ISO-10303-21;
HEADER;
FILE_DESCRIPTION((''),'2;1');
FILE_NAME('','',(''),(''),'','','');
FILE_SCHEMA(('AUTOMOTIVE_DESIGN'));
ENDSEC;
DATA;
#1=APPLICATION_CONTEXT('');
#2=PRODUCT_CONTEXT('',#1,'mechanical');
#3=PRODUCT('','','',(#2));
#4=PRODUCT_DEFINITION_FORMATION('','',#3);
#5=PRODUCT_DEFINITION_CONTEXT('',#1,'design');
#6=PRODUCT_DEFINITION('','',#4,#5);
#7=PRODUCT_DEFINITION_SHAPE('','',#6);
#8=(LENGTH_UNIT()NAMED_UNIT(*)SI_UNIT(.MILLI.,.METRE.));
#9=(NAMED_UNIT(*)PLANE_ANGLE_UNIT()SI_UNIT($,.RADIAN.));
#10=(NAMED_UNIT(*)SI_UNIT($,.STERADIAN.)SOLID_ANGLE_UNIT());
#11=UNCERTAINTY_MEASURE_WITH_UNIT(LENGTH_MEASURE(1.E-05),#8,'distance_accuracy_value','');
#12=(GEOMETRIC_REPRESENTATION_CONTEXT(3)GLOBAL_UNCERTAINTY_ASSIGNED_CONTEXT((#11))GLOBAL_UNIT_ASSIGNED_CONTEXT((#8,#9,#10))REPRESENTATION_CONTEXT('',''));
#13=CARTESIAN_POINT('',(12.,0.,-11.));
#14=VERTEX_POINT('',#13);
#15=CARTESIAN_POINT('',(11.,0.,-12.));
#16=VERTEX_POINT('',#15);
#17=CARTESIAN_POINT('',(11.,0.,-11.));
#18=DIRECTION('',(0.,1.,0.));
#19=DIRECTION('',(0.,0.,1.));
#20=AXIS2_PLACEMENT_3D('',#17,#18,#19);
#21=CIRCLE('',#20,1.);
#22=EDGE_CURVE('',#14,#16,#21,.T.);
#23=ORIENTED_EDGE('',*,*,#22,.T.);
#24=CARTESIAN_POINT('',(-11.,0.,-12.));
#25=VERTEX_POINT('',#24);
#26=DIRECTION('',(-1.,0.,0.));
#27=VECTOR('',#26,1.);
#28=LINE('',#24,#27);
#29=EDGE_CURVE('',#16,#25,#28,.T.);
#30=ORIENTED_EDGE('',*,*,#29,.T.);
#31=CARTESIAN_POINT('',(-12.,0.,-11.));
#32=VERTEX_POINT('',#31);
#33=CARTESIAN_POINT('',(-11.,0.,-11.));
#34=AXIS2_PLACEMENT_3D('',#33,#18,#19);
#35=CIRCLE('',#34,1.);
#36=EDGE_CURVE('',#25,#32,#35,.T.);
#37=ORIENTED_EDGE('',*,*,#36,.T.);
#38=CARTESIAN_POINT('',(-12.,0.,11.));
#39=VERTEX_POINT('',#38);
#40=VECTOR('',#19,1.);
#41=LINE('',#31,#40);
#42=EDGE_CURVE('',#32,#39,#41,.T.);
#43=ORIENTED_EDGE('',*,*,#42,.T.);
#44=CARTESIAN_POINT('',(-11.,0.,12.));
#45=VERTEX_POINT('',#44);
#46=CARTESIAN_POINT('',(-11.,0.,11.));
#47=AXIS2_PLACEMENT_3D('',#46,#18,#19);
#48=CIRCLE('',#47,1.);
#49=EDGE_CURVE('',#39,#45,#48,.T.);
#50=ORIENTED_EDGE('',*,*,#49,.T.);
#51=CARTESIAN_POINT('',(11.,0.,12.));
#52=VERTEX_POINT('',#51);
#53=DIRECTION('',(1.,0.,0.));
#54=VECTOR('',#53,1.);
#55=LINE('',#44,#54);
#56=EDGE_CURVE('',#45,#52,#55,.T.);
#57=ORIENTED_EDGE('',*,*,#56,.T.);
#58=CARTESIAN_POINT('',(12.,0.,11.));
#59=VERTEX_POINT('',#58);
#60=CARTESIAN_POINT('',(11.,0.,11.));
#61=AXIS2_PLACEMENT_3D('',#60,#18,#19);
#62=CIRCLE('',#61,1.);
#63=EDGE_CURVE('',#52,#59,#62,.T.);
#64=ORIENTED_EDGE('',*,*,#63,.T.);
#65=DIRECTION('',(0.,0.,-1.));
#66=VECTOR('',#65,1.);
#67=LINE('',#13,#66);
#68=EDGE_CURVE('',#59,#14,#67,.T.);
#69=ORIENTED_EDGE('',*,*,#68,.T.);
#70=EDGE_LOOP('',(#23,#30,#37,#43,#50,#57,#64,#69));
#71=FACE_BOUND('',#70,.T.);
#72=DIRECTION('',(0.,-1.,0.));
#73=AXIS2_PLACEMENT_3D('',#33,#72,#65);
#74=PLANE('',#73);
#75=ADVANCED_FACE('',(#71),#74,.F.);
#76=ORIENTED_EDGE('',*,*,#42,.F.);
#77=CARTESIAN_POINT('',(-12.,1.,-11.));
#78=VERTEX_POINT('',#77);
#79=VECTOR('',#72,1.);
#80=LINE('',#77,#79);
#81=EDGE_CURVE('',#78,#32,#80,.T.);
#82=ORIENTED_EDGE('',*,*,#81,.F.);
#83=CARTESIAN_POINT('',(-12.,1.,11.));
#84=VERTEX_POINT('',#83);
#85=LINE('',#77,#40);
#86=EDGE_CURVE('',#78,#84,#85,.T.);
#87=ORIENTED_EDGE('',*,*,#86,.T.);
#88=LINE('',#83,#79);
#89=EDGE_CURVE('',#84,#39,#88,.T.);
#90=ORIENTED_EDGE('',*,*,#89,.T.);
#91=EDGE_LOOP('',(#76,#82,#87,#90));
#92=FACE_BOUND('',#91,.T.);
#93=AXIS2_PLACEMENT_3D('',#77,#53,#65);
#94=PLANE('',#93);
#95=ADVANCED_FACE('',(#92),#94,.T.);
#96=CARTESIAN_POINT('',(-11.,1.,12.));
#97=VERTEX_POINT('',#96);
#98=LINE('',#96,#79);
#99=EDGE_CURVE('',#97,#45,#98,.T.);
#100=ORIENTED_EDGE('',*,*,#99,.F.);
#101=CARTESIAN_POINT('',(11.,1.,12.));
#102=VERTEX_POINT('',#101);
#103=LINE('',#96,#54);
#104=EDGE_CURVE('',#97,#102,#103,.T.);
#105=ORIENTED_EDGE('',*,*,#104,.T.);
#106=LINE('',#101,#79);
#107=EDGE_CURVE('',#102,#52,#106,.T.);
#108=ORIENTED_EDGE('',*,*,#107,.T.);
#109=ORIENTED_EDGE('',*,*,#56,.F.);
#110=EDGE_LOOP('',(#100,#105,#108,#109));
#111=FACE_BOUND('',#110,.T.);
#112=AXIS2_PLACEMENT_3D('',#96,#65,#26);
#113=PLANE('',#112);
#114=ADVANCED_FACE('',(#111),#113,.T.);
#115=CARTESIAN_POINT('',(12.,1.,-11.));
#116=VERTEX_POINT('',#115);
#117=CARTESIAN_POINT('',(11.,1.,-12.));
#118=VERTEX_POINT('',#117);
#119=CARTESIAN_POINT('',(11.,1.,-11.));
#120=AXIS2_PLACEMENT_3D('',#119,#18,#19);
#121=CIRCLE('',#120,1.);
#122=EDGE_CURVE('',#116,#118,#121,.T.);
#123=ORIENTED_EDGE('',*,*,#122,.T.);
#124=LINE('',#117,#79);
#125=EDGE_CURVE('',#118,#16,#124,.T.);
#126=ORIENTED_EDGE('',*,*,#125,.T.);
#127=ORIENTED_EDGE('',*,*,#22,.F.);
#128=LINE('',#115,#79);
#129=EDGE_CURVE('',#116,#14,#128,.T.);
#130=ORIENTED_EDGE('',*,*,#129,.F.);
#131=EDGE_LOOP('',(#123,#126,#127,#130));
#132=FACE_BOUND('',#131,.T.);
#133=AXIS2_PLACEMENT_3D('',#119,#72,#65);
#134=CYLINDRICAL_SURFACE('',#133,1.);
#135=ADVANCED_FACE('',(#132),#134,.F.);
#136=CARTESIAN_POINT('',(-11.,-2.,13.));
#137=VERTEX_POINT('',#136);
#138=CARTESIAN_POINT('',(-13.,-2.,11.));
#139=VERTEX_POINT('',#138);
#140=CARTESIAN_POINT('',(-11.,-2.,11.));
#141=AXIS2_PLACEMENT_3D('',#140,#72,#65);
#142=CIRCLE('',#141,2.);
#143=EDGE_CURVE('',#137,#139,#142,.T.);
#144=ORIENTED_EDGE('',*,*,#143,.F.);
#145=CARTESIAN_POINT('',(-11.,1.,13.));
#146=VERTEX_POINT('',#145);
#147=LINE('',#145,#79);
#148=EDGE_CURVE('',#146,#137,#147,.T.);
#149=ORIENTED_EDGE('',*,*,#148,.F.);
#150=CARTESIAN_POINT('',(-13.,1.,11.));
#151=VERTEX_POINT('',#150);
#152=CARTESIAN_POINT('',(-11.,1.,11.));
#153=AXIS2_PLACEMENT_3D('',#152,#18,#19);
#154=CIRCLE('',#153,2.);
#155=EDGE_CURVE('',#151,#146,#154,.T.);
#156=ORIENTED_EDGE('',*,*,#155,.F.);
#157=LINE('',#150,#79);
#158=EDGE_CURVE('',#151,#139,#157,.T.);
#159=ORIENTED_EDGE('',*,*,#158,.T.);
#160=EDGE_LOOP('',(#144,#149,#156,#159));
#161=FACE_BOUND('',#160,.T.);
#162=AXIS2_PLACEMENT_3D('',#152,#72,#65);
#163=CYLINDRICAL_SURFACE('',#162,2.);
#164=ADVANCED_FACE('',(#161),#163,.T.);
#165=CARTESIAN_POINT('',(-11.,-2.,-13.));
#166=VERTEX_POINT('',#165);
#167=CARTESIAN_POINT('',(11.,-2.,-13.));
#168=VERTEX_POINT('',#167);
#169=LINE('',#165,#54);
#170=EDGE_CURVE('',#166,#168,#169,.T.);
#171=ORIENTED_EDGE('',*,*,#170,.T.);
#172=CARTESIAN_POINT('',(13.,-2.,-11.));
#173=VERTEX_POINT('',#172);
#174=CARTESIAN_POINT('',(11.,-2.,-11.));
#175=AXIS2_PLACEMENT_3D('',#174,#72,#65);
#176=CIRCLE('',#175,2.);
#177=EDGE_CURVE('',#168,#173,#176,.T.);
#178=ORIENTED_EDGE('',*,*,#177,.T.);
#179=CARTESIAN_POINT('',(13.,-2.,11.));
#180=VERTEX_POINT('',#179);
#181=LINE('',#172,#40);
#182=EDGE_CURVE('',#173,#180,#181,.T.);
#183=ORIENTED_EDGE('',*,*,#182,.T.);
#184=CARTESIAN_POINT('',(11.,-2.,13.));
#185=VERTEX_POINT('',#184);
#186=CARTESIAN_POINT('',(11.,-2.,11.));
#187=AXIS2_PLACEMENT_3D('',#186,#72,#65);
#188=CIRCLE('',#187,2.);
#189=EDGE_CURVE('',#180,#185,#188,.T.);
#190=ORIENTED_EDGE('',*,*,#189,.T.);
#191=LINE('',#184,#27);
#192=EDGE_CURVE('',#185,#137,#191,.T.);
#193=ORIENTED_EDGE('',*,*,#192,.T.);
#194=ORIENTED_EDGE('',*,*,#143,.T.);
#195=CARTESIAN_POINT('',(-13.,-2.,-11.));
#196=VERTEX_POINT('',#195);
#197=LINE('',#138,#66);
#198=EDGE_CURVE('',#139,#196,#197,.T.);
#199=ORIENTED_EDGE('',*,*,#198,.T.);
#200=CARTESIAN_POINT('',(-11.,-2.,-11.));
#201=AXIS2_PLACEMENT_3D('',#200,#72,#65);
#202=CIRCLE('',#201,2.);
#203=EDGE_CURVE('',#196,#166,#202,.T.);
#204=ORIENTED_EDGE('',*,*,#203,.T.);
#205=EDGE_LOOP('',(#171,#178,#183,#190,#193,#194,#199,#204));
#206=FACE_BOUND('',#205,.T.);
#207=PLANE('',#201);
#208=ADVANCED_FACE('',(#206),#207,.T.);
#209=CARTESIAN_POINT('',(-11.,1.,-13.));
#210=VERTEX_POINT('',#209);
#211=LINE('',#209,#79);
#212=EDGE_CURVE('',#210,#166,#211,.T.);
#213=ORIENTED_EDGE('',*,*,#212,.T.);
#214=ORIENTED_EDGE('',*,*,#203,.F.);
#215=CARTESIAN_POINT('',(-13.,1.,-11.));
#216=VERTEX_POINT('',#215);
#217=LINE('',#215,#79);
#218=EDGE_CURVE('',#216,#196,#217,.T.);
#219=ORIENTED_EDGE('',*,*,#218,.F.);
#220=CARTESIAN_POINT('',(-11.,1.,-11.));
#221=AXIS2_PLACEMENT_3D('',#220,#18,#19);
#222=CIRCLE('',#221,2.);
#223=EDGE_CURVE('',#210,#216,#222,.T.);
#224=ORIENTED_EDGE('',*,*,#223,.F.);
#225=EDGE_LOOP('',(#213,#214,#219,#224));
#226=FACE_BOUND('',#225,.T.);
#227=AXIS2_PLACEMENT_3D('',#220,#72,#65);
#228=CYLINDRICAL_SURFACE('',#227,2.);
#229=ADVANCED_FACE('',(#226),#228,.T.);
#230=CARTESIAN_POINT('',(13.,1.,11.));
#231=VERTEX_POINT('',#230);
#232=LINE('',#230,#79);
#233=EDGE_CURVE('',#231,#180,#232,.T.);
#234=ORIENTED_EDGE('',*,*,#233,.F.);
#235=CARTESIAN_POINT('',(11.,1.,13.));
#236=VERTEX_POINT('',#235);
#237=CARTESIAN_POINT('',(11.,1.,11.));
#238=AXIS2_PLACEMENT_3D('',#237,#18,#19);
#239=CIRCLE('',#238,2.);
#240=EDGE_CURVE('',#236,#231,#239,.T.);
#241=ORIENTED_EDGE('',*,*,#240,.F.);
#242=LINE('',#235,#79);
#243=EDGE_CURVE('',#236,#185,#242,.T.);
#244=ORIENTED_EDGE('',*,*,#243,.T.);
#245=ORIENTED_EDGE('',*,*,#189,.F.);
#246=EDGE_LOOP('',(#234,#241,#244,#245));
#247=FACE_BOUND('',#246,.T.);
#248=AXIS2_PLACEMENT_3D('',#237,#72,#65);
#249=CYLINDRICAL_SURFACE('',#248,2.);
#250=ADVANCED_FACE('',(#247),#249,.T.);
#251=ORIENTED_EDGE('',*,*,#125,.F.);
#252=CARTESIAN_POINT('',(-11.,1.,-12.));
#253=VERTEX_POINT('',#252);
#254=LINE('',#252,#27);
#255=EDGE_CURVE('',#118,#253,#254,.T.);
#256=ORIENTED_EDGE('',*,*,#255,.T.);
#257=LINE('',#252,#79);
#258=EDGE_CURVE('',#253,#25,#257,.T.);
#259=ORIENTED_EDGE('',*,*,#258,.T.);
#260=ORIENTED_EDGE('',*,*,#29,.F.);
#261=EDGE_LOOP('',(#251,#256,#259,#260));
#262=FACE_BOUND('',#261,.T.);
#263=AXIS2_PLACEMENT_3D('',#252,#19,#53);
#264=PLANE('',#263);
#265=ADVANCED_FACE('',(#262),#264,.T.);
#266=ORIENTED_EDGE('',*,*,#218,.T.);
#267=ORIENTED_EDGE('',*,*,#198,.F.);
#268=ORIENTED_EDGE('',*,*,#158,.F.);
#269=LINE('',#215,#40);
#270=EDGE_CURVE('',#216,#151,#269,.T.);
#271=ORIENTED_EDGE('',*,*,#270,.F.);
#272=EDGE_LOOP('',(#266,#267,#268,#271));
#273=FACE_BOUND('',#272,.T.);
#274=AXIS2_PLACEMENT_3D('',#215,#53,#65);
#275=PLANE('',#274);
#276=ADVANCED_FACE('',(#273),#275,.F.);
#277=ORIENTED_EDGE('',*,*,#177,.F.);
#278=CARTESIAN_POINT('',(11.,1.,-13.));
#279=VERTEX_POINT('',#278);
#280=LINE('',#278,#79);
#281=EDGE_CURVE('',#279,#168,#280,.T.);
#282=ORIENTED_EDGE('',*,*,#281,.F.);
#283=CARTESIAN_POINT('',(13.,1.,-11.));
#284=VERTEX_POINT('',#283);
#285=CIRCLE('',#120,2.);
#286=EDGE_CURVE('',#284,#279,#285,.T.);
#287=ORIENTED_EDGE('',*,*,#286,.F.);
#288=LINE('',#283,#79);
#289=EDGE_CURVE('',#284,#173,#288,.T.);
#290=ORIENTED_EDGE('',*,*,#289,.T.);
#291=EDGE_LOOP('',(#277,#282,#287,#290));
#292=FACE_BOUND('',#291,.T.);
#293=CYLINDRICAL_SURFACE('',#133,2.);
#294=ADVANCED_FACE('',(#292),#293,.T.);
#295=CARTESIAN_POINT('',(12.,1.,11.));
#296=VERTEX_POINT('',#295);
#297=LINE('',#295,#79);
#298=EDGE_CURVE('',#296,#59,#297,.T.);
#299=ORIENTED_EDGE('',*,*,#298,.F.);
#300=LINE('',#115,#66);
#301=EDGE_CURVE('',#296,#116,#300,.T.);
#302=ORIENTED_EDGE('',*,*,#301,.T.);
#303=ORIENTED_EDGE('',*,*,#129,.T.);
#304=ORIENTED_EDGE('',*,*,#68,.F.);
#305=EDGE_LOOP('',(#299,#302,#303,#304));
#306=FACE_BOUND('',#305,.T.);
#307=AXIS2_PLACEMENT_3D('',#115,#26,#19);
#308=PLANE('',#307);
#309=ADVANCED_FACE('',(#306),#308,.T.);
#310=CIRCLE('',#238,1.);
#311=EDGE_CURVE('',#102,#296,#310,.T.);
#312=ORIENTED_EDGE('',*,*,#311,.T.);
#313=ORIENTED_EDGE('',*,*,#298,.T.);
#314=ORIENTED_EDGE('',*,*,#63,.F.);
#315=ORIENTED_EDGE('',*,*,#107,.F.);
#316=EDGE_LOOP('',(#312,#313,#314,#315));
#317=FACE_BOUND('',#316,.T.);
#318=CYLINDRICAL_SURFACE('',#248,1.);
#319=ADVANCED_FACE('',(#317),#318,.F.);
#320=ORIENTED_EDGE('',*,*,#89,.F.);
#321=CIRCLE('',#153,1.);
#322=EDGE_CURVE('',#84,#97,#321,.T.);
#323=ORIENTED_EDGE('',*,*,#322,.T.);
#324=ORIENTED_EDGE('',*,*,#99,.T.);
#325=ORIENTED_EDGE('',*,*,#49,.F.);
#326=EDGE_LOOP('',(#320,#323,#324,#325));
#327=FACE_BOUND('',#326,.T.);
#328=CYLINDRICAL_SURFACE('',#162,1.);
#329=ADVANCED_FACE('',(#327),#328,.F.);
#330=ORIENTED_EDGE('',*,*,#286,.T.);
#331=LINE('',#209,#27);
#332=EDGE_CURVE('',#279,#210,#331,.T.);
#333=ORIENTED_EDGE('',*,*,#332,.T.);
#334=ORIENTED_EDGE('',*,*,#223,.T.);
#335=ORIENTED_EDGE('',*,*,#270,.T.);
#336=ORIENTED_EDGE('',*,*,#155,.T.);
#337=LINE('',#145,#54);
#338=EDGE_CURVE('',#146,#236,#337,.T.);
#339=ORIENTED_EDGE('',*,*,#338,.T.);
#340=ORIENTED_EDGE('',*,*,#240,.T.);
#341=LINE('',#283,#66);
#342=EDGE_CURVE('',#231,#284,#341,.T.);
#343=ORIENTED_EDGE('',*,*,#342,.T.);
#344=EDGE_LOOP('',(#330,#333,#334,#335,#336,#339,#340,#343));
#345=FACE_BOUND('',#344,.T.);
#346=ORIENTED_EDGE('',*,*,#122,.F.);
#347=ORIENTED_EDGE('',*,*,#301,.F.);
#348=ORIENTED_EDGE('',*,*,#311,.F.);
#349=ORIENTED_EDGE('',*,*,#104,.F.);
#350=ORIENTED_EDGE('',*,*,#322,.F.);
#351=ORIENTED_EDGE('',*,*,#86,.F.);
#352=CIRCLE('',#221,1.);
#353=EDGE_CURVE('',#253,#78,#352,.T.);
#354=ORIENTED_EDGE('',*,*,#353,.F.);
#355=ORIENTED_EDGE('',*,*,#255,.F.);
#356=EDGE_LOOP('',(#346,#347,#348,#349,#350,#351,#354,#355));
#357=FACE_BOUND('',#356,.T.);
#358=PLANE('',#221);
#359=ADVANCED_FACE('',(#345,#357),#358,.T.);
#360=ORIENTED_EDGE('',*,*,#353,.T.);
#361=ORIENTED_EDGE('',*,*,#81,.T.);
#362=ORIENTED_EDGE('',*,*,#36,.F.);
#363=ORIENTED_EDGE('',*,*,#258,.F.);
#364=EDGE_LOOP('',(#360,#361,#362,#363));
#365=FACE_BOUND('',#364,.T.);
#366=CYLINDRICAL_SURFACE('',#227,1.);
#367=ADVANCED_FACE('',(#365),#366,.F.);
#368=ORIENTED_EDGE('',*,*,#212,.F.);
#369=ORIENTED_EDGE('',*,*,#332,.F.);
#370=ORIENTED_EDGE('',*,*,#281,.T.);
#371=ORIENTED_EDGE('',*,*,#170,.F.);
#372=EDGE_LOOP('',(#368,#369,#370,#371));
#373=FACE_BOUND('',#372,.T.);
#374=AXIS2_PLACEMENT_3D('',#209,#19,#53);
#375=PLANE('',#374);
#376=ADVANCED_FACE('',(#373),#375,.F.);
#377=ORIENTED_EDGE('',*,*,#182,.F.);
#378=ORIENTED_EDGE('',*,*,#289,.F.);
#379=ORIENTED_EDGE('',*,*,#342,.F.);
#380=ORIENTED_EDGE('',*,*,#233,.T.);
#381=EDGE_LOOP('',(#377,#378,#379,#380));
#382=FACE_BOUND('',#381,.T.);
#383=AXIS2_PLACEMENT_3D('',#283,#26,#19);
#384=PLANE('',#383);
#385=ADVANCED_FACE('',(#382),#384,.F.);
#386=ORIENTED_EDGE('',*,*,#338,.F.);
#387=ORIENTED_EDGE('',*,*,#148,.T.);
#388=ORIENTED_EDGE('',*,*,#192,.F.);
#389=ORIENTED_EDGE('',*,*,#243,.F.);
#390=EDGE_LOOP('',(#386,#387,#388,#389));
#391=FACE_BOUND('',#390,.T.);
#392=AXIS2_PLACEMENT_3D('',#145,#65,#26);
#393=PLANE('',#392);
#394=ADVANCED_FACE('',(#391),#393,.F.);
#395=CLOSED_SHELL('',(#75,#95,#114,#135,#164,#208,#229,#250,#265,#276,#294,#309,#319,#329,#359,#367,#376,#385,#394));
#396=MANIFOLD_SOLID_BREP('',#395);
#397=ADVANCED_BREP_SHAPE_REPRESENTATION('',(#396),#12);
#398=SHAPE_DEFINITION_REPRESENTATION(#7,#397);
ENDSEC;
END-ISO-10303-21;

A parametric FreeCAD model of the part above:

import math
import FreeCAD as App
import Part
import Sketcher
from FreeCAD import Vector

doc = App.newDocument("Part")
body = doc.addObject("PartDesign::Body", "Body")

# Sketch on XZ plane
sketch1 = body.newObject("Sketcher::SketchObject", "Sketch")
sketch1.AttachmentSupport = (doc.getObject("XZ_Plane"), [""])
sketch1.MapMode = "FlatFace"
sketch1.addGeometry(Part.LineSegment(Vector(-13, -11, 0), Vector(-13, 11, 0)), False)
sketch1.addGeometry(Part.ArcOfCircle(Part.Circle(Vector(-11, 11, 0), Vector(0, 0, 1), 2), math.radians(90), math.radians(180)), False)
sketch1.addGeometry(Part.LineSegment(Vector(-11, 13, 0), Vector(11, 13, 0)), False)
sketch1.addGeometry(Part.ArcOfCircle(Part.Circle(Vector(11, 11, 0), Vector(0, 0, 1), 2), math.radians(0), math.radians(90)), False)
sketch1.addGeometry(Part.LineSegment(Vector(13, 11, 0), Vector(13, -11, 0)), False)
sketch1.addGeometry(Part.ArcOfCircle(Part.Circle(Vector(11, -11, 0), Vector(0, 0, 1), 2), math.radians(-90), math.radians(0)), False)
sketch1.addGeometry(Part.LineSegment(Vector(11, -13, 0), Vector(-11, -13, 0)), False)
sketch1.addGeometry(Part.ArcOfCircle(Part.Circle(Vector(-11, -11, 0), Vector(0, 0, 1), 2), math.radians(-180), math.radians(-90)), False)
sketch1.addGeometry(Part.ArcOfCircle(Part.Circle(Vector(-11, -11, 0), Vector(0, 0, 1), 1), math.radians(-180), math.radians(-90)), False)
sketch1.addGeometry(Part.LineSegment(Vector(-11, -12, 0), Vector(11, -12, 0)), False)
sketch1.addGeometry(Part.ArcOfCircle(Part.Circle(Vector(11, -11, 0), Vector(0, 0, 1), 1), math.radians(-90), math.radians(0)), False)
sketch1.addGeometry(Part.LineSegment(Vector(12, -11, 0), Vector(12, 11, 0)), False)
sketch1.addGeometry(Part.ArcOfCircle(Part.Circle(Vector(11, 11, 0), Vector(0, 0, 1), 1), math.radians(0), math.radians(90)), False)
sketch1.addGeometry(Part.LineSegment(Vector(11, 12, 0), Vector(-11, 12, 0)), False)
sketch1.addGeometry(Part.ArcOfCircle(Part.Circle(Vector(-11, 11, 0), Vector(0, 0, 1), 1), math.radians(90), math.radians(180)), False)
sketch1.addGeometry(Part.LineSegment(Vector(-12, 11, 0), Vector(-12, -11, 0)), False)
sketch1.addConstraint(Sketcher.Constraint("Tangent", 0, 2, 1, 2))
sketch1.addConstraint(Sketcher.Constraint("Tangent", 1, 1, 2, 1))
sketch1.addConstraint(Sketcher.Constraint("Tangent", 2, 2, 3, 2))
sketch1.addConstraint(Sketcher.Constraint("Tangent", 3, 1, 4, 1))
sketch1.addConstraint(Sketcher.Constraint("Tangent", 4, 2, 5, 2))
sketch1.addConstraint(Sketcher.Constraint("Tangent", 5, 1, 6, 1))
sketch1.addConstraint(Sketcher.Constraint("Tangent", 6, 2, 7, 2))
sketch1.addConstraint(Sketcher.Constraint("Tangent", 7, 1, 0, 1))
sketch1.addConstraint(Sketcher.Constraint("Tangent", 8, 2, 9, 1))
sketch1.addConstraint(Sketcher.Constraint("Tangent", 9, 2, 10, 1))
sketch1.addConstraint(Sketcher.Constraint("Tangent", 10, 2, 11, 1))
sketch1.addConstraint(Sketcher.Constraint("Tangent", 11, 2, 12, 1))
sketch1.addConstraint(Sketcher.Constraint("Tangent", 12, 2, 13, 1))
sketch1.addConstraint(Sketcher.Constraint("Tangent", 13, 2, 14, 1))
sketch1.addConstraint(Sketcher.Constraint("Tangent", 14, 2, 15, 1))
sketch1.addConstraint(Sketcher.Constraint("Tangent", 15, 2, 8, 1))
sketch1.addConstraint(Sketcher.Constraint("Vertical", 0))
sketch1.addConstraint(Sketcher.Constraint("Horizontal", 2))
sketch1.addConstraint(Sketcher.Constraint("Vertical", 4))
sketch1.addConstraint(Sketcher.Constraint("Horizontal", 6))
sketch1.addConstraint(Sketcher.Constraint("Horizontal", 9))
sketch1.addConstraint(Sketcher.Constraint("Vertical", 11))
sketch1.addConstraint(Sketcher.Constraint("Horizontal", 13))
sketch1.addConstraint(Sketcher.Constraint("Vertical", 15))
sketch1.addConstraint(Sketcher.Constraint("Coincident", 8, 3, 7, 3))
sketch1.addConstraint(Sketcher.Constraint("Coincident", 10, 3, 5, 3))
sketch1.addConstraint(Sketcher.Constraint("Coincident", 12, 3, 3, 3))
sketch1.addConstraint(Sketcher.Constraint("Equal", 1, 3))
sketch1.addConstraint(Sketcher.Constraint("Equal", 3, 5))
sketch1.addConstraint(Sketcher.Constraint("Equal", 5, 7))
sketch1.addConstraint(Sketcher.Constraint("Equal", 12, 14))
sketch1.addConstraint(Sketcher.Constraint("Symmetric", 1, 3, 5, 3, -1, 1))
sketch1.addConstraint(Sketcher.Constraint("Equal", 13, 0))
sketch1.addConstraint(Sketcher.Constraint("Radius", 1, 2.0))
sketch1.addConstraint(Sketcher.Constraint("Radius", 8, 1.0))
sketch1.addConstraint(Sketcher.Constraint("DistanceX", 2, 1, 2, 2, 22.0))
pad1 = body.newObject("PartDesign::Pad", "Pad")
pad1.Profile = sketch1
pad1.Length = 1
pad1.Reversed = True

# Sketch on XZ plane
sketch2 = body.newObject("Sketcher::SketchObject", "Sketch001")
sketch2.AttachmentSupport = (doc.getObject("XZ_Plane"), [""])
sketch2.MapMode = "FlatFace"
sketch2.addGeometry(Part.LineSegment(Vector(-11, -13, 0), Vector(11, -13, 0)), False)
sketch2.addGeometry(Part.ArcOfCircle(Part.Circle(Vector(11, -11, 0), Vector(0, 0, 1), 2), math.radians(-90), math.radians(0)), False)
sketch2.addGeometry(Part.LineSegment(Vector(13, -11, 0), Vector(13, 11, 0)), False)
sketch2.addGeometry(Part.ArcOfCircle(Part.Circle(Vector(11, 11, 0), Vector(0, 0, 1), 2), math.radians(0), math.radians(90)), False)
sketch2.addGeometry(Part.LineSegment(Vector(11, 13, 0), Vector(-11, 13, 0)), False)
sketch2.addGeometry(Part.ArcOfCircle(Part.Circle(Vector(-11, 11, 0), Vector(0, 0, 1), 2), math.radians(90), math.radians(180)), False)
sketch2.addGeometry(Part.LineSegment(Vector(-13, 11, 0), Vector(-13, -11, 0)), False)
sketch2.addGeometry(Part.ArcOfCircle(Part.Circle(Vector(-11, -11, 0), Vector(0, 0, 1), 2), math.radians(-180), math.radians(-90)), False)
sketch2.addConstraint(Sketcher.Constraint("Tangent", 0, 2, 1, 1))
sketch2.addConstraint(Sketcher.Constraint("Tangent", 1, 2, 2, 1))
sketch2.addConstraint(Sketcher.Constraint("Tangent", 2, 2, 3, 1))
sketch2.addConstraint(Sketcher.Constraint("Tangent", 3, 2, 4, 1))
sketch2.addConstraint(Sketcher.Constraint("Tangent", 4, 2, 5, 1))
sketch2.addConstraint(Sketcher.Constraint("Tangent", 5, 2, 6, 1))
sketch2.addConstraint(Sketcher.Constraint("Tangent", 6, 2, 7, 1))
sketch2.addConstraint(Sketcher.Constraint("Tangent", 7, 2, 0, 1))
sketch2.addConstraint(Sketcher.Constraint("Horizontal", 0))
sketch2.addConstraint(Sketcher.Constraint("Vertical", 2))
sketch2.addConstraint(Sketcher.Constraint("Horizontal", 4))
sketch2.addConstraint(Sketcher.Constraint("Vertical", 6))
sketch2.addConstraint(Sketcher.Constraint("Equal", 1, 3))
sketch2.addConstraint(Sketcher.Constraint("Equal", 3, 5))
sketch2.addConstraint(Sketcher.Constraint("Equal", 5, 7))
sketch2.addConstraint(Sketcher.Constraint("Symmetric", 1, 3, 5, 3, -1, 1))
sketch2.addConstraint(Sketcher.Constraint("Equal", 4, 2))
sketch2.addConstraint(Sketcher.Constraint("Radius", 1, 2.0))
sketch2.addConstraint(Sketcher.Constraint("DistanceX", 0, 1, 0, 2, 22.0))
pad2 = body.newObject("PartDesign::Pad", "Pad001")
pad2.Profile = sketch2
pad2.Length = 2

doc.recompute()
